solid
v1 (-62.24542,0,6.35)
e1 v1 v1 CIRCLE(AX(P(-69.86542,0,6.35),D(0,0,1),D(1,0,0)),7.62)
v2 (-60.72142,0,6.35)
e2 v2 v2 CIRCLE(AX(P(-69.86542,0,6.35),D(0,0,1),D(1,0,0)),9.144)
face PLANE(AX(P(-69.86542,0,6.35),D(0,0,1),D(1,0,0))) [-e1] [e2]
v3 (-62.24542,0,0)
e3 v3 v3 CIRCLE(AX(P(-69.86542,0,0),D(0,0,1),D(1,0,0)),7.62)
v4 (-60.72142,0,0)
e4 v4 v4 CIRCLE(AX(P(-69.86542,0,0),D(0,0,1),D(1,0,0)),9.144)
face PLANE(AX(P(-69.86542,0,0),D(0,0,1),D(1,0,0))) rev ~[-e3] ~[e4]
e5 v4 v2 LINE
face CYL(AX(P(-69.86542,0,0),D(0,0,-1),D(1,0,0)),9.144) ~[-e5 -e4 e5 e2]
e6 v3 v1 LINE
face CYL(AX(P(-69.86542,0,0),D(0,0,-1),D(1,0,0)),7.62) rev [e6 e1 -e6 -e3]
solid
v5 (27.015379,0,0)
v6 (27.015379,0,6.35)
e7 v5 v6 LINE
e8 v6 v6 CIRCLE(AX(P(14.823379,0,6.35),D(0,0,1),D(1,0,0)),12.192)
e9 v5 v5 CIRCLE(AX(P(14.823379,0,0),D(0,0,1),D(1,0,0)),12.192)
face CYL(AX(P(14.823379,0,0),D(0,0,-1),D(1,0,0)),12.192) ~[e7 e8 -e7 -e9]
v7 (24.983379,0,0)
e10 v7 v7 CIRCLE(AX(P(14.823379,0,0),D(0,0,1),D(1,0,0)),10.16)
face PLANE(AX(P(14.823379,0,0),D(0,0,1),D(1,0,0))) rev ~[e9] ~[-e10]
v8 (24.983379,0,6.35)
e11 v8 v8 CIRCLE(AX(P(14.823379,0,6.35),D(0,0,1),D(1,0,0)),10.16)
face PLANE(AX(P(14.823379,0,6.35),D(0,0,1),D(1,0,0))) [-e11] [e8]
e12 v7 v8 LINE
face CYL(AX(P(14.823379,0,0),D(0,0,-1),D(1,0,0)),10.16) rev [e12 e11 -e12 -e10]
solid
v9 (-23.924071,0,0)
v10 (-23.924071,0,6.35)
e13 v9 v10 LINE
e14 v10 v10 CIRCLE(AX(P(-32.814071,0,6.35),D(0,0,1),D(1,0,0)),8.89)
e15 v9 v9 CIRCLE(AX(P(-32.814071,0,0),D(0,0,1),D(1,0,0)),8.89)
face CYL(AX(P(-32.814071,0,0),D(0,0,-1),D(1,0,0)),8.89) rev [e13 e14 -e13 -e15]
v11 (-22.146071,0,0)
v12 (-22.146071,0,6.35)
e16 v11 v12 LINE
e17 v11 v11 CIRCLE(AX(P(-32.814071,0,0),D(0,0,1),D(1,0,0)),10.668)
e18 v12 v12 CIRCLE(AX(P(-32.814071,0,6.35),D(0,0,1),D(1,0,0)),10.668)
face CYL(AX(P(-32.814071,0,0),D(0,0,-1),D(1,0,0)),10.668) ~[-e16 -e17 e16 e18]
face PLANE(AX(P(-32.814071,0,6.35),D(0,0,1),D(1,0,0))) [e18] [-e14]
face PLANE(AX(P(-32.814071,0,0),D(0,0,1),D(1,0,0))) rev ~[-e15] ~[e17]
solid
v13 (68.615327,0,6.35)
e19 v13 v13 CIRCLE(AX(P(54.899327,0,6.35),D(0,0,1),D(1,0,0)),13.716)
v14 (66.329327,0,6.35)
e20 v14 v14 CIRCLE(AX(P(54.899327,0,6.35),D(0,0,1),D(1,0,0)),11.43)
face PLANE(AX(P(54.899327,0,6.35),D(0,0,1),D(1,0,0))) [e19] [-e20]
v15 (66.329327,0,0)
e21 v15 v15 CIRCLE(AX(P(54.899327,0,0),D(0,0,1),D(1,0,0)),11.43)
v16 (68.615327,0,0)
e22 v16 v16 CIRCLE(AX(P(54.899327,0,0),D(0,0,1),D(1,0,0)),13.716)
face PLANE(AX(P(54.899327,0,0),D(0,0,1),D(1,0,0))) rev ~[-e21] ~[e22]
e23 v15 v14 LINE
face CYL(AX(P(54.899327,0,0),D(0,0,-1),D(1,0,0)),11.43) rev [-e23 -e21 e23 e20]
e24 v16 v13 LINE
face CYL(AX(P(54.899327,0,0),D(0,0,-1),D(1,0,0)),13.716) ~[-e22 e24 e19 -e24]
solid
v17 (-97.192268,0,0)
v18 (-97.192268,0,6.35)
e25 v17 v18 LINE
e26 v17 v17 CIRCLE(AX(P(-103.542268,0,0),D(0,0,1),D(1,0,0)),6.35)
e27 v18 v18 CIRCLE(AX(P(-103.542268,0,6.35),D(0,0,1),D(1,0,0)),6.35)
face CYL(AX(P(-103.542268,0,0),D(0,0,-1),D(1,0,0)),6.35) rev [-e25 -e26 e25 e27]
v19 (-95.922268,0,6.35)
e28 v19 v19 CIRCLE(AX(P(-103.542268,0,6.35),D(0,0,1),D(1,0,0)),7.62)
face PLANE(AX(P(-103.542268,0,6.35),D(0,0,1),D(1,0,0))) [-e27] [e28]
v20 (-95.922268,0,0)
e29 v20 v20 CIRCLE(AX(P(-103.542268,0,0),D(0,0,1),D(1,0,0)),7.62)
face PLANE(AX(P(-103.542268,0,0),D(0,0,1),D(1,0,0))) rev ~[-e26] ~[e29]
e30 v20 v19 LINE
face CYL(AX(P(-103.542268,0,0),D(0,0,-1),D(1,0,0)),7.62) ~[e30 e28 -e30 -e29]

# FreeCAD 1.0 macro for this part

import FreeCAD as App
import Part
import Sketcher

V = App.Vector
Q = App.Units.Quantity

doc = App.newDocument("Part")
params = doc.addObject("Spreadsheet::Sheet", "Params")
for row, (alias, value) in enumerate([
    ("sketch1_diameter", "0.6 in"),
    ("sketch1_diameter2", "0.5 in"),
    ("sketch1_diameter3", "0.7 in"),
    ("sketch1_diameter4", "0.8 in"),
    ("sketch1_diameter5", "0.9 in"),
    ("pad1_length", "0.25 in"),
], start=1):
    params.set(f"A{row}", alias)
    params.set(f"B{row}", "=" + value)
    params.setAlias(f"B{row}", alias)

body = doc.addObject("PartDesign::Body", "Body")
body.AllowCompound = True

sketch1 = body.newObject("Sketcher::SketchObject", "Sketch")
sketch1.AttachmentSupport = (doc.getObject("XY_Plane"), [""])
sketch1.MapMode = "FlatFace"
sketch1.addGeometry([
    Part.Circle(V(-104, 0, 0), V(0, 0, 1), 8),
    Part.Circle(V(-104, 0, 0), V(0, 0, 1), 6),
    Part.Circle(V(-70, 0, 0), V(0, 0, 1), 9),
    Part.Circle(V(-70, 0, 0), V(0, 0, 1), 8),
    Part.Circle(V(-33, 0, 0), V(0, 0, 1), 11),
    Part.Circle(V(-33, 0, 0), V(0, 0, 1), 9),
    Part.Circle(V(15, 0, 0), V(0, 0, 1), 12),
    Part.Circle(V(15, 0, 0), V(0, 0, 1), 10),
    Part.Circle(V(55, 0, 0), V(0, 0, 1), 14),
    Part.Circle(V(55, 0, 0), V(0, 0, 1), 11),
], False)
sketch1.addConstraint([
    Sketcher.Constraint("Coincident", 1, 3, 0, 3),
    Sketcher.Constraint("Coincident", 3, 3, 2, 3),
    Sketcher.Constraint("Coincident", 5, 3, 4, 3),
    Sketcher.Constraint("Coincident", 7, 3, 6, 3),
    Sketcher.Constraint("Coincident", 9, 3, 8, 3),
    Sketcher.Constraint("Equal", 0, 3),
    Sketcher.Constraint("PointOnObject", 0, 3, -1),
    Sketcher.Constraint("PointOnObject", 2, 3, -1),
    Sketcher.Constraint("PointOnObject", 4, 3, -1),
    Sketcher.Constraint("PointOnObject", 6, 3, -1),
    Sketcher.Constraint("PointOnObject", 8, 3, -1),
    Sketcher.Constraint("Diameter", 0, Q("0.6 in")),
    Sketcher.Constraint("Diameter", 1, Q("0.5 in")),
    Sketcher.Constraint("Diameter", 5, Q("0.7 in")),
    Sketcher.Constraint("Diameter", 7, Q("0.8 in")),
    Sketcher.Constraint("Diameter", 9, Q("0.9 in")),
    Sketcher.Constraint("Diameter", 2, Q("0.72 in")),
    Sketcher.Constraint("Diameter", 4, Q("0.84 in")),
    Sketcher.Constraint("Diameter", 6, Q("0.96 in")),
    Sketcher.Constraint("Diameter", 8, Q("1.08 in")),
    Sketcher.Constraint("DistanceX", 2, 3, 6, 3, 84.688799),
    Sketcher.Constraint("DistanceX", 4, 3, 8, 3, 87.713398),
    Sketcher.Constraint("DistanceX", 0, 3, -1, 1, 103.542268),
    Sketcher.Constraint("DistanceX", 2, 3, -1, 1, 69.86542),
    Sketcher.Constraint("DistanceX", 4, 3, -1, 1, 32.814071),
])
sketch1.setExpression("Constraints[11]", "Params.sketch1_diameter")
sketch1.setExpression("Constraints[12]", "Params.sketch1_diameter2")
sketch1.setExpression("Constraints[13]", "Params.sketch1_diameter3")
sketch1.setExpression("Constraints[14]", "Params.sketch1_diameter4")
sketch1.setExpression("Constraints[15]", "Params.sketch1_diameter5")
pad1 = body.newObject("PartDesign::Pad", "Pad")
pad1.Profile = sketch1
pad1.setExpression("Length", "Params.pad1_length")

doc.recompute()
